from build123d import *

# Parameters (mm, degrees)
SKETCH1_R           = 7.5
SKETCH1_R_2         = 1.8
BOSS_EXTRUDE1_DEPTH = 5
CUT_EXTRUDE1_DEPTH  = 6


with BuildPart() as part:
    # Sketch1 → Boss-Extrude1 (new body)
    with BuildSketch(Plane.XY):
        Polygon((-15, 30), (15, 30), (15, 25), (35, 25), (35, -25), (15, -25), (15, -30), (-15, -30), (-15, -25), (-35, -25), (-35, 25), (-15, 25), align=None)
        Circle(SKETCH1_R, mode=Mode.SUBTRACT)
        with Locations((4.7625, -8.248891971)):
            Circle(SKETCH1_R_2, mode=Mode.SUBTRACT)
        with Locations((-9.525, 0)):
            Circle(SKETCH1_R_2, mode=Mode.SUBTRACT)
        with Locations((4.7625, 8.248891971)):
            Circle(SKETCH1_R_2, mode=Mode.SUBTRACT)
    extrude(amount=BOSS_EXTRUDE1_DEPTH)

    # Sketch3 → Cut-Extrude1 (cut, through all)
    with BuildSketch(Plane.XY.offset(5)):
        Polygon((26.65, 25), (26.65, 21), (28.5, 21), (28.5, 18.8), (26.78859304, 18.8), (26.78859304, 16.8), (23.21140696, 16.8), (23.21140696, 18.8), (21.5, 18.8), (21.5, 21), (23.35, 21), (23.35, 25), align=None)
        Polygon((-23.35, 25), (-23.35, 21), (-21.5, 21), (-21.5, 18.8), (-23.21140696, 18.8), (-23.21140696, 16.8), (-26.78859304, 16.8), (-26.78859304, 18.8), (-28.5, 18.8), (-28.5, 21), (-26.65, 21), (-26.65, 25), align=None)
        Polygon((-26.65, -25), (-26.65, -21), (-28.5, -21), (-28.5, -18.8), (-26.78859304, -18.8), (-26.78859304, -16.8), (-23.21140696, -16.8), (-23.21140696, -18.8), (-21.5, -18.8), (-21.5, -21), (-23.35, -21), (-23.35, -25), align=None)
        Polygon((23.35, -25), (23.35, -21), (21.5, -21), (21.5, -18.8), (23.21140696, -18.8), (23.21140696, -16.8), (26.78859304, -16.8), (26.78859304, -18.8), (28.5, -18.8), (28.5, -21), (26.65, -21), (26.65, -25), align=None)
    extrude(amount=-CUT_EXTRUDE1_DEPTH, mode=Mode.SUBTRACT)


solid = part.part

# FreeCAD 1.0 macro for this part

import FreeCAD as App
import Part
import Sketcher

V = App.Vector

doc = App.newDocument("Part")
body = doc.addObject("PartDesign::Body", "Body")

sketch1 = doc.addObject("Sketcher::SketchObject", "Sketch")
body.addObject(sketch1)
sketch1.AttachmentSupport = (doc.XY_Plane, [""])
sketch1.MapMode = "FlatFace"
sketch1.addGeometry(Part.LineSegment(V(15, 30, 0), V(-15, 30, 0)), False)
sketch1.addGeometry(Part.LineSegment(V(-15, 30, 0), V(-15, 25, 0)), False)
sketch1.addGeometry(Part.LineSegment(V(-15, 25, 0), V(-35, 25, 0)), False)
sketch1.addGeometry(Part.LineSegment(V(-35, 25, 0), V(-35, -25, 0)), False)
sketch1.addGeometry(Part.LineSegment(V(-35, -25, 0), V(-15, -25, 0)), False)
sketch1.addGeometry(Part.LineSegment(V(-15, -25, 0), V(-15, -30, 0)), False)
sketch1.addGeometry(Part.LineSegment(V(-15, -30, 0), V(15, -30, 0)), False)
sketch1.addGeometry(Part.LineSegment(V(15, -30, 0), V(15, -25, 0)), False)
sketch1.addGeometry(Part.LineSegment(V(15, -25, 0), V(35, -25, 0)), False)
sketch1.addGeometry(Part.LineSegment(V(35, -25, 0), V(35, 25, 0)), False)
sketch1.addGeometry(Part.LineSegment(V(35, 25, 0), V(15, 25, 0)), False)
sketch1.addGeometry(Part.LineSegment(V(15, 25, 0), V(15, 30, 0)), False)
sketch1.addGeometry(Part.Circle(V(4.8, -8.2, 0), V(0, 0, 1), 1.8), False)
sketch1.addGeometry(Part.Circle(V(0, 0, 0), V(0, 0, 1), 7.5), False)
sketch1.addGeometry(Part.Circle(V(4.8, 8.2, 0), V(0, 0, 1), 1.8), False)
sketch1.addGeometry(Part.Circle(V(-9.5, 0, 0), V(0, 0, 1), 1.8), False)
sketch1.addConstraint(Sketcher.Constraint("Coincident", 0, 2, 1, 1))
sketch1.addConstraint(Sketcher.Constraint("Coincident", 1, 2, 2, 1))
sketch1.addConstraint(Sketcher.Constraint("Coincident", 2, 2, 3, 1))
sketch1.addConstraint(Sketcher.Constraint("Coincident", 3, 2, 4, 1))
sketch1.addConstraint(Sketcher.Constraint("Coincident", 4, 2, 5, 1))
sketch1.addConstraint(Sketcher.Constraint("Coincident", 5, 2, 6, 1))
sketch1.addConstraint(Sketcher.Constraint("Coincident", 6, 2, 7, 1))
sketch1.addConstraint(Sketcher.Constraint("Coincident", 7, 2, 8, 1))
sketch1.addConstraint(Sketcher.Constraint("Coincident", 8, 2, 9, 1))
sketch1.addConstraint(Sketcher.Constraint("Coincident", 9, 2, 10, 1))
sketch1.addConstraint(Sketcher.Constraint("Coincident", 10, 2, 11, 1))
sketch1.addConstraint(Sketcher.Constraint("Coincident", 11, 2, 0, 1))
sketch1.addConstraint(Sketcher.Constraint("Horizontal", 0))
sketch1.addConstraint(Sketcher.Constraint("Vertical", 1))
sketch1.addConstraint(Sketcher.Constraint("Horizontal", 2))
sketch1.addConstraint(Sketcher.Constraint("Vertical", 3))
sketch1.addConstraint(Sketcher.Constraint("Horizontal", 4))
sketch1.addConstraint(Sketcher.Constraint("Vertical", 5))
sketch1.addConstraint(Sketcher.Constraint("Horizontal", 6))
sketch1.addConstraint(Sketcher.Constraint("Vertical", 7))
sketch1.addConstraint(Sketcher.Constraint("Horizontal", 8))
sketch1.addConstraint(Sketcher.Constraint("Vertical", 9))
sketch1.addConstraint(Sketcher.Constraint("Horizontal", 10))
sketch1.addConstraint(Sketcher.Constraint("Vertical", 11))
sketch1.addConstraint(Sketcher.Constraint("Coincident", 13, 3, -1, 1))
sketch1.addConstraint(Sketcher.Constraint("Equal", 12, 14))
sketch1.addConstraint(Sketcher.Constraint("Equal", 14, 15))
sketch1.addConstraint(Sketcher.Constraint("Symmetric", 0, 2, 6, 2, -1, 1))
sketch1.addConstraint(Sketcher.Constraint("Symmetric", 2, 2, 8, 2, -1, 1))
sketch1.addConstraint(Sketcher.Constraint("Symmetric", 4, 2, 10, 2, -1, 1))
sketch1.addConstraint(Sketcher.Constraint("Symmetric", 4, 2, 7, 2, -2))
sketch1.addConstraint(Sketcher.Constraint("Symmetric", 12, 3, 14, 3, -1))
sketch1.addConstraint(Sketcher.Constraint("PointOnObject", 15, 3, -1))
sketch1.addConstraint(Sketcher.Constraint("Diameter", 13, 15.0))
sketch1.addConstraint(Sketcher.Constraint("Diameter", 12, 3.6))
sketch1.addConstraint(Sketcher.Constraint("DistanceX", 0, 2, 0, 1, 30.0))
sketch1.addConstraint(Sketcher.Constraint("DistanceX", 2, 2, 2, 1, 20.0))
sketch1.addConstraint(Sketcher.Constraint("DistanceY", 1, 2, 1, 1, 5.0))
sketch1.addConstraint(Sketcher.Constraint("DistanceY", 3, 2, 3, 1, 50.0))
sketch1.addConstraint(Sketcher.Constraint("DistanceX", 15, 3, -1, 1, 9.525))
sketch1.addConstraint(Sketcher.Constraint("DistanceX", -1, 1, 12, 3, 4.7625))
sketch1.addConstraint(Sketcher.Constraint("DistanceY", 12, 3, -1, 1, 8.248892))
pad1 = doc.addObject("PartDesign::Pad", "Pad")
body.addObject(pad1)
pad1.Profile = sketch1
pad1.Length = 5

sketch2 = doc.addObject("Sketcher::SketchObject", "Sketch001")
body.addObject(sketch2)
sketch2.AttachmentSupport = (doc.XY_Plane, [""])
sketch2.MapMode = "FlatFace"
sketch2.AttachmentOffset = App.Placement(V(0, 0, 5), App.Rotation())
sketch2.addGeometry(Part.LineSegment(V(26.6, 21, 0), V(26.6, 25, 0)), False)
sketch2.addGeometry(Part.LineSegment(V(26.6, 25, 0), V(23.4, 25, 0)), False)
sketch2.addGeometry(Part.LineSegment(V(23.4, 25, 0), V(23.4, 21, 0)), False)
sketch2.addGeometry(Part.LineSegment(V(23.4, 21, 0), V(21.5, 21, 0)), False)
sketch2.addGeometry(Part.LineSegment(V(21.5, 21, 0), V(21.5, 18.8, 0)), False)
sketch2.addGeometry(Part.LineSegment(V(21.5, 18.8, 0), V(23.2, 18.8, 0)), False)
sketch2.addGeometry(Part.LineSegment(V(23.2, 18.8, 0), V(23.2, 16.8, 0)), False)
sketch2.addGeometry(Part.LineSegment(V(23.2, 16.8, 0), V(26.8, 16.8, 0)), False)
sketch2.addGeometry(Part.LineSegment(V(26.8, 16.8, 0), V(26.8, 18.8, 0)), False)
sketch2.addGeometry(Part.LineSegment(V(26.8, 18.8, 0), V(28.5, 18.8, 0)), False)
sketch2.addGeometry(Part.LineSegment(V(28.5, 18.8, 0), V(28.5, 21, 0)), False)
sketch2.addGeometry(Part.LineSegment(V(28.5, 21, 0), V(26.6, 21, 0)), False)
sketch2.addGeometry(Part.LineSegment(V(-23.4, 21, 0), V(-23.4, 25, 0)), False)
sketch2.addGeometry(Part.LineSegment(V(-23.4, 25, 0), V(-26.6, 25, 0)), False)
sketch2.addGeometry(Part.LineSegment(V(-26.6, 25, 0), V(-26.6, 21, 0)), False)
sketch2.addGeometry(Part.LineSegment(V(-26.6, 21, 0), V(-28.5, 21, 0)), False)
sketch2.addGeometry(Part.LineSegment(V(-28.5, 21, 0), V(-28.5, 18.8, 0)), False)
sketch2.addGeometry(Part.LineSegment(V(-28.5, 18.8, 0), V(-26.8, 18.8, 0)), False)
sketch2.addGeometry(Part.LineSegment(V(-26.8, 18.8, 0), V(-26.8, 16.8, 0)), False)
sketch2.addGeometry(Part.LineSegment(V(-26.8, 16.8, 0), V(-23.2, 16.8, 0)), False)
sketch2.addGeometry(Part.LineSegment(V(-23.2, 16.8, 0), V(-23.2, 18.8, 0)), False)
sketch2.addGeometry(Part.LineSegment(V(-23.2, 18.8, 0), V(-21.5, 18.8, 0)), False)
sketch2.addGeometry(Part.LineSegment(V(-21.5, 18.8, 0), V(-21.5, 21, 0)), False)
sketch2.addGeometry(Part.LineSegment(V(-21.5, 21, 0), V(-23.4, 21, 0)), False)
sketch2.addGeometry(Part.LineSegment(V(-26.6, -21, 0), V(-26.6, -25, 0)), False)
sketch2.addGeometry(Part.LineSegment(V(-26.6, -25, 0), V(-23.4, -25, 0)), False)
sketch2.addGeometry(Part.LineSegment(V(-23.4, -25, 0), V(-23.4, -21, 0)), False)
sketch2.addGeometry(Part.LineSegment(V(-23.4, -21, 0), V(-21.5, -21, 0)), False)
sketch2.addGeometry(Part.LineSegment(V(-21.5, -21, 0), V(-21.5, -18.8, 0)), False)
sketch2.addGeometry(Part.LineSegment(V(-21.5, -18.8, 0), V(-23.2, -18.8, 0)), False)
sketch2.addGeometry(Part.LineSegment(V(-23.2, -18.8, 0), V(-23.2, -16.8, 0)), False)
sketch2.addGeometry(Part.LineSegment(V(-23.2, -16.8, 0), V(-26.8, -16.8, 0)), False)
sketch2.addGeometry(Part.LineSegment(V(-26.8, -16.8, 0), V(-26.8, -18.8, 0)), False)
sketch2.addGeometry(Part.LineSegment(V(-26.8, -18.8, 0), V(-28.5, -18.8, 0)), False)
sketch2.addGeometry(Part.LineSegment(V(-28.5, -18.8, 0), V(-28.5, -21, 0)), False)
sketch2.addGeometry(Part.LineSegment(V(-28.5, -21, 0), V(-26.6, -21, 0)), False)
sketch2.addGeometry(Part.LineSegment(V(23.4, -21, 0), V(23.4, -25, 0)), False)
sketch2.addGeometry(Part.LineSegment(V(23.4, -25, 0), V(26.6, -25, 0)), False)
sketch2.addGeometry(Part.LineSegment(V(26.6, -25, 0), V(26.6, -21, 0)), False)
sketch2.addGeometry(Part.LineSegment(V(26.6, -21, 0), V(28.5, -21, 0)), False)
sketch2.addGeometry(Part.LineSegment(V(28.5, -21, 0), V(28.5, -18.8, 0)), False)
sketch2.addGeometry(Part.LineSegment(V(28.5, -18.8, 0), V(26.8, -18.8, 0)), False)
sketch2.addGeometry(Part.LineSegment(V(26.8, -18.8, 0), V(26.8, -16.8, 0)), False)
sketch2.addGeometry(Part.LineSegment(V(26.8, -16.8, 0), V(23.2, -16.8, 0)), False)
sketch2.addGeometry(Part.LineSegment(V(23.2, -16.8, 0), V(23.2, -18.8, 0)), False)
sketch2.addGeometry(Part.LineSegment(V(23.2, -18.8, 0), V(21.5, -18.8, 0)), False)
sketch2.addGeometry(Part.LineSegment(V(21.5, -18.8, 0), V(21.5, -21, 0)), False)
sketch2.addGeometry(Part.LineSegment(V(21.5, -21, 0), V(23.4, -21, 0)), False)
sketch2.addConstraint(Sketcher.Constraint("Coincident", 0, 2, 1, 1))
sketch2.addConstraint(Sketcher.Constraint("Coincident", 1, 2, 2, 1))
sketch2.addConstraint(Sketcher.Constraint("Coincident", 2, 2, 3, 1))
sketch2.addConstraint(Sketcher.Constraint("Coincident", 3, 2, 4, 1))
sketch2.addConstraint(Sketcher.Constraint("Coincident", 4, 2, 5, 1))
sketch2.addConstraint(Sketcher.Constraint("Coincident", 5, 2, 6, 1))
sketch2.addConstraint(Sketcher.Constraint("Coincident", 6, 2, 7, 1))
sketch2.addConstraint(Sketcher.Constraint("Coincident", 7, 2, 8, 1))
sketch2.addConstraint(Sketcher.Constraint("Coincident", 8, 2, 9, 1))
sketch2.addConstraint(Sketcher.Constraint("Coincident", 9, 2, 10, 1))
sketch2.addConstraint(Sketcher.Constraint("Coincident", 10, 2, 11, 1))
sketch2.addConstraint(Sketcher.Constraint("Coincident", 11, 2, 0, 1))
sketch2.addConstraint(Sketcher.Constraint("Coincident", 12, 2, 13, 1))
sketch2.addConstraint(Sketcher.Constraint("Coincident", 13, 2, 14, 1))
sketch2.addConstraint(Sketcher.Constraint("Coincident", 14, 2, 15, 1))
sketch2.addConstraint(Sketcher.Constraint("Coincident", 15, 2, 16, 1))
sketch2.addConstraint(Sketcher.Constraint("Coincident", 16, 2, 17, 1))
sketch2.addConstraint(Sketcher.Constraint("Coincident", 17, 2, 18, 1))
sketch2.addConstraint(Sketcher.Constraint("Coincident", 18, 2, 19, 1))
sketch2.addConstraint(Sketcher.Constraint("Coincident", 19, 2, 20, 1))
sketch2.addConstraint(Sketcher.Constraint("Coincident", 20, 2, 21, 1))
sketch2.addConstraint(Sketcher.Constraint("Coincident", 21, 2, 22, 1))
sketch2.addConstraint(Sketcher.Constraint("Coincident", 22, 2, 23, 1))
sketch2.addConstraint(Sketcher.Constraint("Coincident", 23, 2, 12, 1))
sketch2.addConstraint(Sketcher.Constraint("Coincident", 24, 2, 25, 1))
sketch2.addConstraint(Sketcher.Constraint("Coincident", 25, 2, 26, 1))
sketch2.addConstraint(Sketcher.Constraint("Coincident", 26, 2, 27, 1))
sketch2.addConstraint(Sketcher.Constraint("Coincident", 27, 2, 28, 1))
sketch2.addConstraint(Sketcher.Constraint("Coincident", 28, 2, 29, 1))
sketch2.addConstraint(Sketcher.Constraint("Coincident", 29, 2, 30, 1))
sketch2.addConstraint(Sketcher.Constraint("Coincident", 30, 2, 31, 1))
sketch2.addConstraint(Sketcher.Constraint("Coincident", 31, 2, 32, 1))
sketch2.addConstraint(Sketcher.Constraint("Coincident", 32, 2, 33, 1))
sketch2.addConstraint(Sketcher.Constraint("Coincident", 33, 2, 34, 1))
sketch2.addConstraint(Sketcher.Constraint("Coincident", 34, 2, 35, 1))
sketch2.addConstraint(Sketcher.Constraint("Coincident", 35, 2, 24, 1))
sketch2.addConstraint(Sketcher.Constraint("Coincident", 36, 2, 37, 1))
sketch2.addConstraint(Sketcher.Constraint("Coincident", 37, 2, 38, 1))
sketch2.addConstraint(Sketcher.Constraint("Coincident", 38, 2, 39, 1))
sketch2.addConstraint(Sketcher.Constraint("Coincident", 39, 2, 40, 1))
sketch2.addConstraint(Sketcher.Constraint("Coincident", 40, 2, 41, 1))
sketch2.addConstraint(Sketcher.Constraint("Coincident", 41, 2, 42, 1))
sketch2.addConstraint(Sketcher.Constraint("Coincident", 42, 2, 43, 1))
sketch2.addConstraint(Sketcher.Constraint("Coincident", 43, 2, 44, 1))
sketch2.addConstraint(Sketcher.Constraint("Coincident", 44, 2, 45, 1))
sketch2.addConstraint(Sketcher.Constraint("Coincident", 45, 2, 46, 1))
sketch2.addConstraint(Sketcher.Constraint("Coincident", 46, 2, 47, 1))
sketch2.addConstraint(Sketcher.Constraint("Coincident", 47, 2, 36, 1))
sketch2.addConstraint(Sketcher.Constraint("Vertical", 0))
sketch2.addConstraint(Sketcher.Constraint("Horizontal", 1))
sketch2.addConstraint(Sketcher.Constraint("Vertical", 2))
sketch2.addConstraint(Sketcher.Constraint("Horizontal", 3))
sketch2.addConstraint(Sketcher.Constraint("Vertical", 4))
sketch2.addConstraint(Sketcher.Constraint("Horizontal", 5))
sketch2.addConstraint(Sketcher.Constraint("Vertical", 6))
sketch2.addConstraint(Sketcher.Constraint("Horizontal", 7))
sketch2.addConstraint(Sketcher.Constraint("Vertical", 8))
sketch2.addConstraint(Sketcher.Constraint("Horizontal", 9))
sketch2.addConstraint(Sketcher.Constraint("Vertical", 10))
sketch2.addConstraint(Sketcher.Constraint("Horizontal", 11))
sketch2.addConstraint(Sketcher.Constraint("Vertical", 12))
sketch2.addConstraint(Sketcher.Constraint("Horizontal", 13))
sketch2.addConstraint(Sketcher.Constraint("Vertical", 14))
sketch2.addConstraint(Sketcher.Constraint("Horizontal", 15))
sketch2.addConstraint(Sketcher.Constraint("Vertical", 16))
sketch2.addConstraint(Sketcher.Constraint("Horizontal", 17))
sketch2.addConstraint(Sketcher.Constraint("Vertical", 18))
sketch2.addConstraint(Sketcher.Constraint("Horizontal", 19))
sketch2.addConstraint(Sketcher.Constraint("Vertical", 20))
sketch2.addConstraint(Sketcher.Constraint("Horizontal", 21))
sketch2.addConstraint(Sketcher.Constraint("Vertical", 22))
sketch2.addConstraint(Sketcher.Constraint("Horizontal", 23))
sketch2.addConstraint(Sketcher.Constraint("Vertical", 24))
sketch2.addConstraint(Sketcher.Constraint("Horizontal", 25))
sketch2.addConstraint(Sketcher.Constraint("Vertical", 26))
sketch2.addConstraint(Sketcher.Constraint("Horizontal", 27))
sketch2.addConstraint(Sketcher.Constraint("Vertical", 28))
sketch2.addConstraint(Sketcher.Constraint("Horizontal", 29))
sketch2.addConstraint(Sketcher.Constraint("Vertical", 30))
sketch2.addConstraint(Sketcher.Constraint("Horizontal", 31))
sketch2.addConstraint(Sketcher.Constraint("Vertical", 32))
sketch2.addConstraint(Sketcher.Constraint("Horizontal", 33))
sketch2.addConstraint(Sketcher.Constraint("Vertical", 34))
sketch2.addConstraint(Sketcher.Constraint("Horizontal", 35))
sketch2.addConstraint(Sketcher.Constraint("Vertical", 36))
sketch2.addConstraint(Sketcher.Constraint("Horizontal", 37))
sketch2.addConstraint(Sketcher.Constraint("Vertical", 38))
sketch2.addConstraint(Sketcher.Constraint("Horizontal", 39))
sketch2.addConstraint(Sketcher.Constraint("Vertical", 40))
sketch2.addConstraint(Sketcher.Constraint("Horizontal", 41))
sketch2.addConstraint(Sketcher.Constraint("Vertical", 42))
sketch2.addConstraint(Sketcher.Constraint("Horizontal", 43))
sketch2.addConstraint(Sketcher.Constraint("Vertical", 44))
sketch2.addConstraint(Sketcher.Constraint("Horizontal", 45))
sketch2.addConstraint(Sketcher.Constraint("Vertical", 46))
sketch2.addConstraint(Sketcher.Constraint("Horizontal", 47))
sketch2.addConstraint(Sketcher.Constraint("Symmetric", 0, 2, 24, 2, -1, 1))
sketch2.addConstraint(Sketcher.Constraint("Symmetric", 2, 2, 26, 2, -1, 1))
sketch2.addConstraint(Sketcher.Constraint("Symmetric", 4, 2, 28, 2, -1, 1))
sketch2.addConstraint(Sketcher.Constraint("Symmetric", 6, 2, 30, 2, -1, 1))
sketch2.addConstraint(Sketcher.Constraint("Symmetric", 8, 2, 32, 2, -1, 1))
sketch2.addConstraint(Sketcher.Constraint("Symmetric", 10, 2, 34, 2, -1, 1))
sketch2.addConstraint(Sketcher.Constraint("Symmetric", 12, 2, 36, 2, -1, 1))
sketch2.addConstraint(Sketcher.Constraint("Symmetric", 14, 2, 38, 2, -1, 1))
sketch2.addConstraint(Sketcher.Constraint("Symmetric", 16, 2, 40, 2, -1, 1))
sketch2.addConstraint(Sketcher.Constraint("Symmetric", 18, 2, 42, 2, -1, 1))
sketch2.addConstraint(Sketcher.Constraint("Symmetric", 20, 2, 44, 2, -1, 1))
sketch2.addConstraint(Sketcher.Constraint("Symmetric", 22, 2, 46, 2, -1, 1))
sketch2.addConstraint(Sketcher.Constraint("Symmetric", 1, 2, 12, 2, -2))
sketch2.addConstraint(Sketcher.Constraint("Symmetric", 11, 2, 14, 2, -2))
sketch2.addConstraint(Sketcher.Constraint("Symmetric", 9, 2, 16, 2, -2))
sketch2.addConstraint(Sketcher.Constraint("Symmetric", 7, 2, 18, 2, -2))
sketch2.addConstraint(Sketcher.Constraint("Symmetric", 5, 2, 20, 2, -2))
sketch2.addConstraint(Sketcher.Constraint("Symmetric", 3, 2, 22, 2, -2))
sketch2.addConstraint(Sketcher.Constraint("Horizontal", 5, 2, 8, 2))
sketch2.addConstraint(Sketcher.Constraint("Horizontal", 3, 2, 10, 2))
sketch2.addConstraint(Sketcher.Constraint("Equal", 5, 9))
sketch2.addConstraint(Sketcher.Constraint("Equal", 3, 11))
sketch2.addConstraint(Sketcher.Constraint("DistanceY", 0, 1, 0, 2, 4.0))
sketch2.addConstraint(Sketcher.Constraint("DistanceY", 6, 2, 6, 1, 2.0))
sketch2.addConstraint(Sketcher.Constraint("DistanceX", 1, 2, 1, 1, 3.3))
sketch2.addConstraint(Sketcher.Constraint("DistanceY", 4, 2, 4, 1, 2.2))
sketch2.addConstraint(Sketcher.Constraint("DistanceY", -1, 1, 0, 2, 25.0))
sketch2.addConstraint(Sketcher.Constraint("DistanceX", 13, 2, 1, 2, 50.0))
sketch2.addConstraint(Sketcher.Constraint("DistanceX", 3, 2, 3, 1, 1.85))
sketch2.addConstraint(Sketcher.Constraint("DistanceX", 5, 1, 5, 2, 1.711407))
pocket1 = doc.addObject("PartDesign::Pocket", "Pocket")
body.addObject(pocket1)
pocket1.Profile = sketch2
pocket1.Type = "ThroughAll"

doc.recompute()
